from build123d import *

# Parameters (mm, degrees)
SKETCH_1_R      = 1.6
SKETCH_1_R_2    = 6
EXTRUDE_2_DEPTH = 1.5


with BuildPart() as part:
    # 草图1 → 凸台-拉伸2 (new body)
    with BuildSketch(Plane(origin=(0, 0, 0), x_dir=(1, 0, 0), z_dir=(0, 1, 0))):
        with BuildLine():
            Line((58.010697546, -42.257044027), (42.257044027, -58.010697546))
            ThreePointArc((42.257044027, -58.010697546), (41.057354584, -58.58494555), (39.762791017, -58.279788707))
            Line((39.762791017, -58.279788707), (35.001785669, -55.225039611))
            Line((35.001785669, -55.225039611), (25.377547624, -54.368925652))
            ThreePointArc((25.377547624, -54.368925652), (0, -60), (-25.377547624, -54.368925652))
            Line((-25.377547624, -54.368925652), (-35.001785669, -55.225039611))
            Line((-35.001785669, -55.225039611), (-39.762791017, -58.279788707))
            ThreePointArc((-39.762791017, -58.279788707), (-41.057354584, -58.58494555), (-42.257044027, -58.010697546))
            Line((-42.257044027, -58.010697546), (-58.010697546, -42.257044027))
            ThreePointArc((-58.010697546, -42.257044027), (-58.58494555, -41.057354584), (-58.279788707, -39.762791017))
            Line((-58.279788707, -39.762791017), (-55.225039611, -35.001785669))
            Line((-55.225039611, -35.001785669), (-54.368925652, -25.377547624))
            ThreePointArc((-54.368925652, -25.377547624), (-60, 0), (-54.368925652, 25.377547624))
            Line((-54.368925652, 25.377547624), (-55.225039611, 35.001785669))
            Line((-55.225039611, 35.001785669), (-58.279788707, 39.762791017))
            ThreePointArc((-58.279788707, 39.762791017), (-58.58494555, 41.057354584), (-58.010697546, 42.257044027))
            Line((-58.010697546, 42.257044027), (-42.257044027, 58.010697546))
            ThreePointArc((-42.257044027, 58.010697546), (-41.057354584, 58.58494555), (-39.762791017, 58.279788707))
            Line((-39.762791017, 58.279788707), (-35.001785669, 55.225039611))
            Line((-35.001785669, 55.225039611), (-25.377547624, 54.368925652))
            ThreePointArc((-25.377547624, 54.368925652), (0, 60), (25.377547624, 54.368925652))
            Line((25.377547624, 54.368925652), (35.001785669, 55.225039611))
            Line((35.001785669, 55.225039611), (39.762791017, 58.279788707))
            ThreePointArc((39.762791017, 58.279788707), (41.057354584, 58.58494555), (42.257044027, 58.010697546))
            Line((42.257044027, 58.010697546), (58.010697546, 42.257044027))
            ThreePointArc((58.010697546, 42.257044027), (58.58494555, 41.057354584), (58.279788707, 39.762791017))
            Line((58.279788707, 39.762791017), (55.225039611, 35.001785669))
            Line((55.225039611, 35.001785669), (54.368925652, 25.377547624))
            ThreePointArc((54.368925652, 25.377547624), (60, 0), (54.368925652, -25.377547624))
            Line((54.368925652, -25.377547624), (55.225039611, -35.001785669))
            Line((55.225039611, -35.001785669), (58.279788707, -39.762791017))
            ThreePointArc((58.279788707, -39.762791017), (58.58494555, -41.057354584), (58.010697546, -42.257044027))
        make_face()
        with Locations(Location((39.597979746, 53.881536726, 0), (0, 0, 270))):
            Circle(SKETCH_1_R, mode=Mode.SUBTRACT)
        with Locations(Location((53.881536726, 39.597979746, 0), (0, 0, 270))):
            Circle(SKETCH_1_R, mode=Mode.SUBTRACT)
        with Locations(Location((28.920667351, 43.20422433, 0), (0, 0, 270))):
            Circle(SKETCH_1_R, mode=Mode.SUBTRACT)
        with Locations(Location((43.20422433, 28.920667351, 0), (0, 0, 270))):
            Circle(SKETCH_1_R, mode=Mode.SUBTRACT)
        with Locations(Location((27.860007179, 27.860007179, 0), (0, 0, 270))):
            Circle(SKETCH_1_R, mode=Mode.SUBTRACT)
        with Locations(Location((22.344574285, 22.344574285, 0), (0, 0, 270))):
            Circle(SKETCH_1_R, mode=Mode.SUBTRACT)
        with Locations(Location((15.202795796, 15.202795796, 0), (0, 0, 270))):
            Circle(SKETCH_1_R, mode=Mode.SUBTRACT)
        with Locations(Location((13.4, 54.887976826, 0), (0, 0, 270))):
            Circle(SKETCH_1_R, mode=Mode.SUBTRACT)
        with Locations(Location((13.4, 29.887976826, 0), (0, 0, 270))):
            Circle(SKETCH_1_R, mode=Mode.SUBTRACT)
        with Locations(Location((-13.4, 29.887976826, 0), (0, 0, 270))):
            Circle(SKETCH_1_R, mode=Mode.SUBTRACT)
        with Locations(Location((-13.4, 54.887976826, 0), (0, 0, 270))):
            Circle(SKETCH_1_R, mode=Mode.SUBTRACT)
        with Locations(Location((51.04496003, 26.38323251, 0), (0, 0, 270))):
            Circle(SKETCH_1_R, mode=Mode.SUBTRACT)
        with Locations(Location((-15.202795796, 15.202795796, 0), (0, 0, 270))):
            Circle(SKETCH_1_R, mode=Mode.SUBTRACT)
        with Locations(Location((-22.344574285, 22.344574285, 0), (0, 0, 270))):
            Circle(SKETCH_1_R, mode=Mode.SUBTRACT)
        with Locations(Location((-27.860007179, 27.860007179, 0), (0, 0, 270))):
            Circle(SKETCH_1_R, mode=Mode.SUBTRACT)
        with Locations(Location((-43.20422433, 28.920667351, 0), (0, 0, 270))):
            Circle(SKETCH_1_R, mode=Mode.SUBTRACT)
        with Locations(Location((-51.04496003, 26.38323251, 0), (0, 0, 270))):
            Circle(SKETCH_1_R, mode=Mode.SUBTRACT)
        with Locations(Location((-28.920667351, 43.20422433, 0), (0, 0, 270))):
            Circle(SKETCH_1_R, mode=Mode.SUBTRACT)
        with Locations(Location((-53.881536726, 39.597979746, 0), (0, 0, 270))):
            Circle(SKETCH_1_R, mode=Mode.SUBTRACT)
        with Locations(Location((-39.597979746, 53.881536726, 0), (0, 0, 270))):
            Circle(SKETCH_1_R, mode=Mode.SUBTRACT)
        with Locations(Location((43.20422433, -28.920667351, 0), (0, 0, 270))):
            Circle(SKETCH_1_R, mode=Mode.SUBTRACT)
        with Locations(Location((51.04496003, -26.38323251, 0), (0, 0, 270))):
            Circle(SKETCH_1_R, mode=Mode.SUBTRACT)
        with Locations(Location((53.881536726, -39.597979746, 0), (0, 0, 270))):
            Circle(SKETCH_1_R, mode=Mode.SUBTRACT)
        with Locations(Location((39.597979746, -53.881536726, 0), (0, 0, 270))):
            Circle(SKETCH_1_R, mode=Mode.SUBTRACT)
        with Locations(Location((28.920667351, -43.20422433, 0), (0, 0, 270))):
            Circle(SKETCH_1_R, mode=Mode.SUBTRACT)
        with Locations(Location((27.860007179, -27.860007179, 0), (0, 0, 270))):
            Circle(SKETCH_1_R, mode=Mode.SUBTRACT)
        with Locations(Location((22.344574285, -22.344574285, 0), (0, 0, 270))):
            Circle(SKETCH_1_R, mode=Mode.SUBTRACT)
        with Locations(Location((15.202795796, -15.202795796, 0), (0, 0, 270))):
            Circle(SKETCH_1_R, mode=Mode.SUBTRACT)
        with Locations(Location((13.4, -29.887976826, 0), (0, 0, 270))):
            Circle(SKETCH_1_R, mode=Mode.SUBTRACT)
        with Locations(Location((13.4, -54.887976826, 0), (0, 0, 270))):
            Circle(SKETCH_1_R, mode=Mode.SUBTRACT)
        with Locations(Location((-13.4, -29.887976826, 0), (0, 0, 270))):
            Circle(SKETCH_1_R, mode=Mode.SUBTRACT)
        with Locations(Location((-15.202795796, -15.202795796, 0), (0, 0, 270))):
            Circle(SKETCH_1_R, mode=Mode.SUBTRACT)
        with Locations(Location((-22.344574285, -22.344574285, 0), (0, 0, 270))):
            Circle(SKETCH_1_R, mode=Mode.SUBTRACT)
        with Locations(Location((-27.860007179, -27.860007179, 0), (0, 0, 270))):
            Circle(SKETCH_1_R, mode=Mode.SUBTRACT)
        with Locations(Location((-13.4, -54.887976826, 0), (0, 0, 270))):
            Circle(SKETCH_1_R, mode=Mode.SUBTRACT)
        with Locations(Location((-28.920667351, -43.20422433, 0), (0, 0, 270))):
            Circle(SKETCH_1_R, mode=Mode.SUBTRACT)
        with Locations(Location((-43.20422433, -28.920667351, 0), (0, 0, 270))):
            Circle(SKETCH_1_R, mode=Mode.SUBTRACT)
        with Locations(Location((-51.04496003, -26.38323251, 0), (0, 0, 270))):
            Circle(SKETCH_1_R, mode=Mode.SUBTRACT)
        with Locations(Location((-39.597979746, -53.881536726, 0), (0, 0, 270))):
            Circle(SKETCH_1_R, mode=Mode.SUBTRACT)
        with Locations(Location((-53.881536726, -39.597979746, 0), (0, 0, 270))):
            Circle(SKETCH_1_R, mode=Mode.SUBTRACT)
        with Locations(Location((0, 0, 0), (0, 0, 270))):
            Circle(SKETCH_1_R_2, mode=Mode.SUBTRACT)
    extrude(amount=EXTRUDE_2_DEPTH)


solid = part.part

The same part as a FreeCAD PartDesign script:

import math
import FreeCAD as App
import Part
import Sketcher
Q = App.Units.Quantity

doc = App.newDocument("Part")
body = doc.addObject("PartDesign::Body", "Body")

# Sketch on XZ plane
sketch1 = doc.addObject("Sketcher::SketchObject", "Sketch")
body.addObject(sketch1)
sketch1.AttachmentSupport = (doc.XZ_Plane, [""])
sketch1.MapMode = "FlatFace"
sketch1.addGeometry([
    Part.LineSegment(App.Vector(42.257044, 58.010698, 0), App.Vector(58.010698, 42.257044, 0)),  # 0
    Part.ArcOfCircle(Part.Circle(App.Vector(56.596484, 40.84283, 0), App.Vector(0, 0, 1), 2), math.radians(-32.684982), math.radians(45)),  # 1
    Part.LineSegment(App.Vector(58.279789, 39.762791, 0), App.Vector(55.22504, 35.001786, 0)),  # 2
    Part.LineSegment(App.Vector(55.22504, 35.001786, 0), App.Vector(54.368926, 25.377548, 0)),  # 3
    Part.ArcOfCircle(Part.Circle(App.Vector(0, 0, 0), App.Vector(0, 0, 1), 60), math.radians(-25.021551), math.radians(25.021551)),  # 4
    Part.LineSegment(App.Vector(54.368926, -25.377548, 0), App.Vector(55.22504, -35.001786, 0)),  # 5
    Part.LineSegment(App.Vector(55.22504, -35.001786, 0), App.Vector(58.279789, -39.762791, 0)),  # 6
    Part.ArcOfCircle(Part.Circle(App.Vector(56.596484, -40.84283, 0), App.Vector(0, 0, 1), 2), math.radians(-45), math.radians(32.684982)),  # 7
    Part.LineSegment(App.Vector(58.010698, -42.257044, 0), App.Vector(42.257044, -58.010698, 0)),  # 8
    Part.ArcOfCircle(Part.Circle(App.Vector(40.84283, -56.596484, 0), App.Vector(0, 0, 1), 2), math.radians(-122.684982), math.radians(-45)),  # 9
    Part.LineSegment(App.Vector(39.762791, -58.279789, 0), App.Vector(35.001786, -55.22504, 0)),  # 10
    Part.LineSegment(App.Vector(35.001786, -55.22504, 0), App.Vector(25.377548, -54.368926, 0)),  # 11
    Part.ArcOfCircle(Part.Circle(App.Vector(0, 0, 0), App.Vector(0, 0, 1), 60), math.radians(-115.021551), math.radians(-64.978449)),  # 12
    Part.LineSegment(App.Vector(-25.377548, -54.368926, 0), App.Vector(-35.001786, -55.22504, 0)),  # 13
    Part.LineSegment(App.Vector(-35.001786, -55.22504, 0), App.Vector(-39.762791, -58.279789, 0)),  # 14
    Part.ArcOfCircle(Part.Circle(App.Vector(-40.84283, -56.596484, 0), App.Vector(0, 0, 1), 2), math.radians(-135), math.radians(-57.315018)),  # 15
    Part.LineSegment(App.Vector(-42.257044, -58.010698, 0), App.Vector(-58.010698, -42.257044, 0)),  # 16
    Part.ArcOfCircle(Part.Circle(App.Vector(-56.596484, -40.84283, 0), App.Vector(0, 0, 1), 2), math.radians(147.315018), math.radians(225)),  # 17
    Part.LineSegment(App.Vector(-58.279789, -39.762791, 0), App.Vector(-55.22504, -35.001786, 0)),  # 18
    Part.LineSegment(App.Vector(-55.22504, -35.001786, 0), App.Vector(-54.368926, -25.377548, 0)),  # 19
    Part.ArcOfCircle(Part.Circle(App.Vector(0, 0, 0), App.Vector(0, 0, 1), 60), math.radians(154.978449), math.radians(205.021551)),  # 20
    Part.LineSegment(App.Vector(-54.368926, 25.377548, 0), App.Vector(-55.22504, 35.001786, 0)),  # 21
    Part.LineSegment(App.Vector(-55.22504, 35.001786, 0), App.Vector(-58.279789, 39.762791, 0)),  # 22
    Part.ArcOfCircle(Part.Circle(App.Vector(-56.596484, 40.84283, 0), App.Vector(0, 0, 1), 2), math.radians(135), math.radians(212.684982)),  # 23
    Part.LineSegment(App.Vector(-58.010698, 42.257044, 0), App.Vector(-42.257044, 58.010698, 0)),  # 24
    Part.ArcOfCircle(Part.Circle(App.Vector(-40.84283, 56.596484, 0), App.Vector(0, 0, 1), 2), math.radians(57.315018), math.radians(135)),  # 25
    Part.LineSegment(App.Vector(-39.762791, 58.279789, 0), App.Vector(-35.001786, 55.22504, 0)),  # 26
    Part.LineSegment(App.Vector(-35.001786, 55.22504, 0), App.Vector(-25.377548, 54.368926, 0)),  # 27
    Part.ArcOfCircle(Part.Circle(App.Vector(0, 0, 0), App.Vector(0, 0, 1), 60), math.radians(64.978449), math.radians(115.021551)),  # 28
    Part.LineSegment(App.Vector(25.377548, 54.368926, 0), App.Vector(35.001786, 55.22504, 0)),  # 29
    Part.LineSegment(App.Vector(35.001786, 55.22504, 0), App.Vector(39.762791, 58.279789, 0)),  # 30
    Part.ArcOfCircle(Part.Circle(App.Vector(40.84283, 56.596484, 0), App.Vector(0, 0, 1), 2), math.radians(45), math.radians(122.684982)),  # 31
    Part.Circle(App.Vector(39.59798, 53.881537, 0), App.Vector(0, 0, 1), 1.6),  # 32
    Part.Circle(App.Vector(28.920667, 43.204224, 0), App.Vector(0, 0, 1), 1.6),  # 33
    Part.Circle(App.Vector(53.881537, 39.59798, 0), App.Vector(0, 0, 1), 1.6),  # 34
    Part.Circle(App.Vector(43.204224, 28.920667, 0), App.Vector(0, 0, 1), 1.6),  # 35
    Part.Circle(App.Vector(13.4, 54.887977, 0), App.Vector(0, 0, 1), 1.6),  # 36
    Part.Circle(App.Vector(13.4, 29.887977, 0), App.Vector(0, 0, 1), 1.6),  # 37
    Part.Circle(App.Vector(51.04496, 26.383233, 0), App.Vector(0, 0, 1), 1.6),  # 38
    Part.Circle(App.Vector(27.860007, 27.860007, 0), App.Vector(0, 0, 1), 1.6),  # 39
    Part.Circle(App.Vector(22.344574, 22.344574, 0), App.Vector(0, 0, 1), 1.6),  # 40
    Part.Circle(App.Vector(15.202796, 15.202796, 0), App.Vector(0, 0, 1), 1.6),  # 41
    Part.Circle(App.Vector(-13.4, 54.887977, 0), App.Vector(0, 0, 1), 1.6),  # 42
    Part.Circle(App.Vector(-13.4, 29.887977, 0), App.Vector(0, 0, 1), 1.6),  # 43
    Part.Circle(App.Vector(-39.59798, 53.881537, 0), App.Vector(0, 0, 1), 1.6),  # 44
    Part.Circle(App.Vector(-28.920667, 43.204224, 0), App.Vector(0, 0, 1), 1.6),  # 45
    Part.Circle(App.Vector(-53.881537, 39.59798, 0), App.Vector(0, 0, 1), 1.6),  # 46
    Part.Circle(App.Vector(-43.204224, 28.920667, 0), App.Vector(0, 0, 1), 1.6),  # 47
    Part.Circle(App.Vector(-22.344574, 22.344574, 0), App.Vector(0, 0, 1), 1.6),  # 48
    Part.Circle(App.Vector(-15.202796, 15.202796, 0), App.Vector(0, 0, 1), 1.6),  # 49
    Part.Circle(App.Vector(-27.860007, 27.860007, 0), App.Vector(0, 0, 1), 1.6),  # 50
    Part.Circle(App.Vector(-51.04496, 26.383233, 0), App.Vector(0, 0, 1), 1.6),  # 51
    Part.Circle(App.Vector(51.04496, -26.383233, 0), App.Vector(0, 0, 1), 1.6),  # 52
    Part.Circle(App.Vector(27.860007, -27.860007, 0), App.Vector(0, 0, 1), 1.6),  # 53
    Part.Circle(App.Vector(15.202796, -15.202796, 0), App.Vector(0, 0, 1), 1.6),  # 54
    Part.Circle(App.Vector(22.344574, -22.344574, 0), App.Vector(0, 0, 1), 1.6),  # 55
    Part.Circle(App.Vector(43.204224, -28.920667, 0), App.Vector(0, 0, 1), 1.6),  # 56
    Part.Circle(App.Vector(53.881537, -39.59798, 0), App.Vector(0, 0, 1), 1.6),  # 57
    Part.Circle(App.Vector(28.920667, -43.204224, 0), App.Vector(0, 0, 1), 1.6),  # 58
    Part.Circle(App.Vector(39.59798, -53.881537, 0), App.Vector(0, 0, 1), 1.6),  # 59
    Part.Circle(App.Vector(13.4, -29.887977, 0), App.Vector(0, 0, 1), 1.6),  # 60
    Part.Circle(App.Vector(13.4, -54.887977, 0), App.Vector(0, 0, 1), 1.6),  # 61
    Part.Circle(App.Vector(0, 0, 0), App.Vector(0, 0, 1), 6),  # 62
    Part.Circle(App.Vector(-15.202796, -15.202796, 0), App.Vector(0, 0, 1), 1.6),  # 63
    Part.Circle(App.Vector(-22.344574, -22.344574, 0), App.Vector(0, 0, 1), 1.6),  # 64
    Part.Circle(App.Vector(-27.860007, -27.860007, 0), App.Vector(0, 0, 1), 1.6),  # 65
    Part.Circle(App.Vector(-51.04496, -26.383233, 0), App.Vector(0, 0, 1), 1.6),  # 66
    Part.Circle(App.Vector(-13.4, -29.887977, 0), App.Vector(0, 0, 1), 1.6),  # 67
    Part.Circle(App.Vector(-13.4, -54.887977, 0), App.Vector(0, 0, 1), 1.6),  # 68
    Part.Circle(App.Vector(-43.204224, -28.920667, 0), App.Vector(0, 0, 1), 1.6),  # 69
    Part.Circle(App.Vector(-53.881537, -39.59798, 0), App.Vector(0, 0, 1), 1.6),  # 70
    Part.Circle(App.Vector(-28.920667, -43.204224, 0), App.Vector(0, 0, 1), 1.6),  # 71
    Part.Circle(App.Vector(-39.59798, -53.881537, 0), App.Vector(0, 0, 1), 1.6),  # 72
], False)
sketch1.addConstraint([
    Sketcher.Constraint("Tangent", 0, 2, 1, 2),
    Sketcher.Constraint("Tangent", 1, 1, 2, 1),
    Sketcher.Constraint("Coincident", 2, 2, 3, 1),
    Sketcher.Constraint("Coincident", 3, 2, 4, 2),
    Sketcher.Constraint("Coincident", 4, 1, 5, 1),
    Sketcher.Constraint("Coincident", 5, 2, 6, 1),
    Sketcher.Constraint("Tangent", 6, 2, 7, 2),
    Sketcher.Constraint("Tangent", 7, 1, 8, 1),
    Sketcher.Constraint("Tangent", 8, 2, 9, 2),
    Sketcher.Constraint("Tangent", 9, 1, 10, 1),
    Sketcher.Constraint("Coincident", 10, 2, 11, 1),
    Sketcher.Constraint("Coincident", 11, 2, 12, 2),
    Sketcher.Constraint("Coincident", 12, 1, 13, 1),
    Sketcher.Constraint("Coincident", 13, 2, 14, 1),
    Sketcher.Constraint("Tangent", 14, 2, 15, 2),
    Sketcher.Constraint("Tangent", 15, 1, 16, 1),
    Sketcher.Constraint("Tangent", 16, 2, 17, 2),
    Sketcher.Constraint("Tangent", 17, 1, 18, 1),
    Sketcher.Constraint("Coincident", 18, 2, 19, 1),
    Sketcher.Constraint("Coincident", 19, 2, 20, 2),
    Sketcher.Constraint("Coincident", 20, 1, 21, 1),
    Sketcher.Constraint("Coincident", 21, 2, 22, 1),
    Sketcher.Constraint("Tangent", 22, 2, 23, 2),
    Sketcher.Constraint("Tangent", 23, 1, 24, 1),
    Sketcher.Constraint("Tangent", 24, 2, 25, 2),
    Sketcher.Constraint("Tangent", 25, 1, 26, 1),
    Sketcher.Constraint("Coincident", 26, 2, 27, 1),
    Sketcher.Constraint("Coincident", 27, 2, 28, 2),
    Sketcher.Constraint("Coincident", 28, 1, 29, 1),
    Sketcher.Constraint("Coincident", 29, 2, 30, 1),
    Sketcher.Constraint("Tangent", 30, 2, 31, 2),
    Sketcher.Constraint("Tangent", 31, 1, 0, 1),
    Sketcher.Constraint("Coincident", 4, 3, -1, 1),
    Sketcher.Constraint("Coincident", 12, 3, -1, 1),
    Sketcher.Constraint("Coincident", 20, 3, -1, 1),
    Sketcher.Constraint("Coincident", 28, 3, -1, 1),
    Sketcher.Constraint("Coincident", 62, 3, -1, 1),
    Sketcher.Constraint("Equal", 1, 7),
    Sketcher.Constraint("Equal", 7, 9),
    Sketcher.Constraint("Equal", 4, 12),
    Sketcher.Constraint("Equal", 9, 15),
    Sketcher.Constraint("Equal", 15, 17),
    Sketcher.Constraint("Equal", 12, 20),
    Sketcher.Constraint("Equal", 17, 23),
    Sketcher.Constraint("Equal", 23, 25),
    Sketcher.Constraint("Equal", 20, 28),
    Sketcher.Constraint("Equal", 25, 31),
    Sketcher.Constraint("Equal", 32, 33),
    Sketcher.Constraint("Equal", 33, 34),
    Sketcher.Constraint("Equal", 34, 35),
    Sketcher.Constraint("Equal", 35, 36),
    Sketcher.Constraint("Equal", 36, 37),
    Sketcher.Constraint("Equal", 37, 38),
    Sketcher.Constraint("Equal", 38, 39),
    Sketcher.Constraint("Equal", 39, 40),
    Sketcher.Constraint("Equal", 40, 41),
    Sketcher.Constraint("Equal", 41, 42),
    Sketcher.Constraint("Equal", 42, 43),
    Sketcher.Constraint("Equal", 43, 44),
    Sketcher.Constraint("Equal", 44, 45),
    Sketcher.Constraint("Equal", 45, 46),
    Sketcher.Constraint("Equal", 46, 47),
    Sketcher.Constraint("Equal", 47, 48),
    Sketcher.Constraint("Equal", 48, 49),
    Sketcher.Constraint("Equal", 49, 50),
    Sketcher.Constraint("Equal", 50, 51),
    Sketcher.Constraint("Equal", 51, 52),
    Sketcher.Constraint("Equal", 52, 53),
    Sketcher.Constraint("Equal", 53, 54),
    Sketcher.Constraint("Equal", 54, 55),
    Sketcher.Constraint("Equal", 55, 56),
    Sketcher.Constraint("Equal", 56, 57),
    Sketcher.Constraint("Equal", 57, 58),
    Sketcher.Constraint("Equal", 58, 59),
    Sketcher.Constraint("Equal", 59, 60),
    Sketcher.Constraint("Equal", 60, 61),
    Sketcher.Constraint("Equal", 61, 63),
    Sketcher.Constraint("Equal", 63, 64),
    Sketcher.Constraint("Equal", 64, 65),
    Sketcher.Constraint("Equal", 65, 66),
    Sketcher.Constraint("Equal", 66, 67),
    Sketcher.Constraint("Equal", 67, 68),
    Sketcher.Constraint("Equal", 68, 69),
    Sketcher.Constraint("Equal", 69, 70),
    Sketcher.Constraint("Equal", 70, 71),
    Sketcher.Constraint("Equal", 71, 72),
    Sketcher.Constraint("Symmetric", 1, 3, 17, 3, -1, 1),
    Sketcher.Constraint("Symmetric", 7, 3, 23, 3, -1, 1),
    Sketcher.Constraint("Symmetric", 9, 3, 25, 3, -1, 1),
    Sketcher.Constraint("Symmetric", 15, 3, 31, 3, -1, 1),
    Sketcher.Constraint("Symmetric", 51, 3, 52, 3, -1, 1),
    Sketcher.Constraint("Symmetric", 50, 3, 53, 3, -1, 1),
    Sketcher.Constraint("Symmetric", 49, 3, 54, 3, -1, 1),
    Sketcher.Constraint("Symmetric", 48, 3, 55, 3, -1, 1),
    Sketcher.Constraint("Symmetric", 47, 3, 56, 3, -1, 1),
    Sketcher.Constraint("Symmetric", 46, 3, 57, 3, -1, 1),
    Sketcher.Constraint("Symmetric", 45, 3, 58, 3, -1, 1),
    Sketcher.Constraint("Symmetric", 44, 3, 59, 3, -1, 1),
    Sketcher.Constraint("Symmetric", 43, 3, 60, 3, -1, 1),
    Sketcher.Constraint("Symmetric", 42, 3, 61, 3, -1, 1),
    Sketcher.Constraint("Symmetric", 41, 3, 63, 3, -1, 1),
    Sketcher.Constraint("Symmetric", 40, 3, 64, 3, -1, 1),
    Sketcher.Constraint("Symmetric", 39, 3, 65, 3, -1, 1),
    Sketcher.Constraint("Symmetric", 38, 3, 66, 3, -1, 1),
    Sketcher.Constraint("Symmetric", 37, 3, 67, 3, -1, 1),
    Sketcher.Constraint("Symmetric", 36, 3, 68, 3, -1, 1),
    Sketcher.Constraint("Symmetric", 35, 3, 69, 3, -1, 1),
    Sketcher.Constraint("Symmetric", 34, 3, 70, 3, -1, 1),
    Sketcher.Constraint("Symmetric", 33, 3, 71, 3, -1, 1),
    Sketcher.Constraint("Symmetric", 32, 3, 72, 3, -1, 1),
    Sketcher.Constraint("Symmetric", 2, 2, 18, 2, -1, 1),
    Sketcher.Constraint("Symmetric", 5, 2, 21, 2, -1, 1),
    Sketcher.Constraint("Symmetric", 10, 2, 26, 2, -1, 1),
    Sketcher.Constraint("Symmetric", 13, 2, 29, 2, -1, 1),
    Sketcher.Constraint("Symmetric", 9, 3, 15, 3, -2),
    Sketcher.Constraint("Symmetric", 7, 3, 17, 3, -2),
    Sketcher.Constraint("Symmetric", 36, 3, 42, 3, -2),
    Sketcher.Constraint("Symmetric", 37, 3, 43, 3, -2),
    Sketcher.Constraint("Symmetric", 32, 3, 44, 3, -2),
    Sketcher.Constraint("Symmetric", 33, 3, 45, 3, -2),
    Sketcher.Constraint("Symmetric", 34, 3, 46, 3, -2),
    Sketcher.Constraint("Symmetric", 35, 3, 47, 3, -2),
    Sketcher.Constraint("Symmetric", 40, 3, 48, 3, -2),
    Sketcher.Constraint("Symmetric", 41, 3, 49, 3, -2),
    Sketcher.Constraint("Symmetric", 39, 3, 50, 3, -2),
    Sketcher.Constraint("Symmetric", 38, 3, 51, 3, -2),
    Sketcher.Constraint("Symmetric", 10, 2, 13, 2, -2),
    Sketcher.Constraint("Symmetric", 5, 2, 18, 2, -2),
    Sketcher.Constraint("Perpendicular", 0, 8),
    Sketcher.Constraint("Perpendicular", 2, 10),
    Sketcher.Constraint("Perpendicular", 3, 11),
    Sketcher.Constraint("Perpendicular", 5, 13),
    Sketcher.Constraint("Perpendicular", 11, 19),
    Sketcher.Constraint("Perpendicular", 13, 21),
    Sketcher.Constraint("Perpendicular", 19, 27),
    Sketcher.Constraint("Perpendicular", 21, 29),
    Sketcher.Constraint("Horizontal", 11, 2, 12, 1),
    Sketcher.Constraint("Vertical", 36, 3, 37, 3),
    Sketcher.Constraint("Equal", 6, 10),
    Sketcher.Constraint("Equal", 5, 11),
    Sketcher.Constraint("Diameter", 62, Q("12 mm")),
    Sketcher.Constraint("Radius", 1, Q("2 mm")),
    Sketcher.Constraint("Radius", 4, Q("60 mm")),
    Sketcher.Constraint("Diameter", 32, Q("3.2 mm")),
    Sketcher.Constraint("DistanceX", -1, 1, 36, 3, Q("13.4 mm")),
    Sketcher.Constraint("Distance", 0, Q("22.27903 mm")),
    Sketcher.Constraint("Distance", 3, Q("9.66224 mm")),
    Sketcher.Constraint("DistanceY", -1, 1, 1, 3, Q("40.84283 mm")),
    Sketcher.Constraint("DistanceX", -1, 1, 32, 3, Q("39.59798 mm")),
    Sketcher.Constraint("DistanceY", -1, 1, 34, 3, Q("39.59798 mm")),
    Sketcher.Constraint("DistanceX", -1, 1, 38, 3, Q("51.04496 mm")),
    Sketcher.Constraint("DistanceX", -1, 1, 1, 1, Q("58.279789 mm")),
    Sketcher.Constraint("DistanceX", -1, 1, 2, 2, Q("55.22504 mm")),
    Sketcher.Constraint("DistanceY", -1, 1, 32, 3, Q("53.881537 mm")),
    Sketcher.Constraint("DistanceX", -1, 1, 33, 3, Q("28.920667 mm")),
    Sketcher.Constraint("DistanceY", -1, 1, 33, 3, Q("43.204224 mm")),
    Sketcher.Constraint("DistanceX", -1, 1, 34, 3, Q("53.881537 mm")),
    Sketcher.Constraint("DistanceX", -1, 1, 35, 3, Q("43.204224 mm")),
    Sketcher.Constraint("DistanceY", -1, 1, 35, 3, Q("28.920667 mm")),
    Sketcher.Constraint("DistanceY", -1, 1, 36, 3, Q("54.887977 mm")),
    Sketcher.Constraint("DistanceY", -1, 1, 37, 3, Q("29.887977 mm")),
    Sketcher.Constraint("DistanceY", -1, 1, 38, 3, Q("26.383233 mm")),
    Sketcher.Constraint("DistanceX", -1, 1, 39, 3, Q("27.860007 mm")),
    Sketcher.Constraint("DistanceY", -1, 1, 39, 3, Q("27.860007 mm")),
    Sketcher.Constraint("DistanceX", -1, 1, 40, 3, Q("22.344574 mm")),
    Sketcher.Constraint("DistanceY", -1, 1, 40, 3, Q("22.344574 mm")),
    Sketcher.Constraint("DistanceX", -1, 1, 41, 3, Q("15.202796 mm")),
    Sketcher.Constraint("DistanceY", -1, 1, 41, 3, Q("15.202796 mm")),
])
pad1 = doc.addObject("PartDesign::Pad", "Pad")
body.addObject(pad1)
pad1.Profile = sketch1
pad1.Length = 1.5
pad1.Reversed = True

doc.recompute()
